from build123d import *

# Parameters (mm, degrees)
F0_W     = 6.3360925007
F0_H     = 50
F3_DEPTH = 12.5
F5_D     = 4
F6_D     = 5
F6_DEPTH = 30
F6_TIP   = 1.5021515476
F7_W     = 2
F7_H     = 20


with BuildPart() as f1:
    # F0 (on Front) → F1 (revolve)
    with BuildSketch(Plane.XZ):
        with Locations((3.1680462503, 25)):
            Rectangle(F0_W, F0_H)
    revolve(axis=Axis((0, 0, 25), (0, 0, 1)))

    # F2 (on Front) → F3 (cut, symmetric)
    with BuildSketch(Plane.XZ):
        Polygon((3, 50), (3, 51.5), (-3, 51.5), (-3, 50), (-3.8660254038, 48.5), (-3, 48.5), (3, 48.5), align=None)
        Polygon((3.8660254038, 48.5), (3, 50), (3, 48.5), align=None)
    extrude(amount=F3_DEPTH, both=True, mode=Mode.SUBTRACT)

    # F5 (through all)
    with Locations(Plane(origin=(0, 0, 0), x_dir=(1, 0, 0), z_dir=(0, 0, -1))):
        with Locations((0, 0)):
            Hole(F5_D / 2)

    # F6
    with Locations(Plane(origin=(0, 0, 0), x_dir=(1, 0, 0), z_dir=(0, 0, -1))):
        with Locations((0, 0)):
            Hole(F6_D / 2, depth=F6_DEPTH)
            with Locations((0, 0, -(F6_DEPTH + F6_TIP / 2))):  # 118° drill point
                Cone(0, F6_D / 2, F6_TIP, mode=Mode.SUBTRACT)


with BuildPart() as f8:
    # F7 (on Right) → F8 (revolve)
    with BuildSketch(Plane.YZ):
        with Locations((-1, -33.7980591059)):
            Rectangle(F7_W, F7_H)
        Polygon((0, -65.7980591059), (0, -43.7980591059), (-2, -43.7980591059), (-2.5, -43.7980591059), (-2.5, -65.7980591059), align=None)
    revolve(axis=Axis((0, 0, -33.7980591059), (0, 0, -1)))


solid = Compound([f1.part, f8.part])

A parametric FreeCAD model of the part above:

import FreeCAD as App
import Part
import Sketcher
from FreeCAD import Vector
Q = App.Units.Quantity

doc = App.newDocument("Part")
body = doc.addObject("PartDesign::Body", "Body")

sketch1 = doc.addObject("Sketcher::SketchObject", "Sketch")
body.addObject(sketch1)
sketch1.AttachmentSupport = (doc.XZ_Plane, [""])
sketch1.MapMode = "FlatFace"
sketch1.addGeometry([
    Part.LineSegment(Vector(0, 50, 0), Vector(0, 0, 0)),
    Part.LineSegment(Vector(0, 0, 0), Vector(6.336093, 0, 0)),
    Part.LineSegment(Vector(6.336093, 0, 0), Vector(6.336093, 50, 0)),
    Part.LineSegment(Vector(6.336093, 50, 0), Vector(0, 50, 0)),
], False)
sketch1.addConstraint([
    Sketcher.Constraint("Coincident", 0, 2, 1, 1),
    Sketcher.Constraint("Coincident", 1, 2, 2, 1),
    Sketcher.Constraint("Coincident", 2, 2, 3, 1),
    Sketcher.Constraint("Coincident", 3, 2, 0, 1),
    Sketcher.Constraint("Vertical", 0),
    Sketcher.Constraint("Horizontal", 1),
    Sketcher.Constraint("Vertical", 2),
    Sketcher.Constraint("Horizontal", 3),
    Sketcher.Constraint("Coincident", 0, 2, -1, 1),
    Sketcher.Constraint("DistanceY", 0, 2, 0, 1, 50.0),
    Sketcher.Constraint("DistanceX", 1, 1, 1, 2, 6.336093),
])
revolution = doc.addObject("PartDesign::Revolution", "Revolution")
body.addObject(revolution)
revolution.Profile = sketch1
revolution.ReferenceAxis = (sketch1, ["V_Axis"])
revolution.Angle = 360

sketch2 = doc.addObject("Sketcher::SketchObject", "Sketch001")
body.addObject(sketch2)
sketch2.AttachmentSupport = (doc.XZ_Plane, [""])
sketch2.MapMode = "FlatFace"
sketch2.addGeometry([
    Part.LineSegment(Vector(3, 51.5, 0), Vector(-3, 51.5, 0)),
    Part.LineSegment(Vector(-3, 51.5, 0), Vector(-3, 50, 0)),
    Part.LineSegment(Vector(-3, 50, 0), Vector(-3.866025, 48.5, 0)),
    Part.LineSegment(Vector(-3.866025, 48.5, 0), Vector(3.866025, 48.5, 0)),
    Part.LineSegment(Vector(3.866025, 48.5, 0), Vector(3, 50, 0)),
    Part.LineSegment(Vector(3, 50, 0), Vector(3, 51.5, 0)),
], False)
sketch2.addConstraint([
    Sketcher.Constraint("Coincident", 0, 2, 1, 1),
    Sketcher.Constraint("Coincident", 1, 2, 2, 1),
    Sketcher.Constraint("Coincident", 2, 2, 3, 1),
    Sketcher.Constraint("Coincident", 3, 2, 4, 1),
    Sketcher.Constraint("Coincident", 4, 2, 5, 1),
    Sketcher.Constraint("Coincident", 5, 2, 0, 1),
    Sketcher.Constraint("Horizontal", 0),
    Sketcher.Constraint("Vertical", 1),
    Sketcher.Constraint("Horizontal", 3),
    Sketcher.Constraint("Vertical", 5),
    Sketcher.Constraint("Symmetric", 1, 2, 4, 2, -2),
    Sketcher.Constraint("Equal", 2, 4),
    Sketcher.Constraint("DistanceX", 0, 2, 0, 1, 6.0),
    Sketcher.Constraint("Angle", 2, Q("-120 deg")),
    Sketcher.Constraint("DistanceY", 1, 2, 1, 1, 1.5),
    Sketcher.Constraint("DistanceY", -1, 1, 1, 2, 50.0),
    Sketcher.Constraint("DistanceY", 2, 2, 0, 2, 3.0),
])
pocket1 = doc.addObject("PartDesign::Pocket", "Pocket")
body.addObject(pocket1)
pocket1.Profile = sketch2
pocket1.Length = 25
pocket1.Midplane = True

sketch3 = doc.addObject("Sketcher::SketchObject", "Sketch002")
body.addObject(sketch3)
sketch3.AttachmentSupport = (doc.XY_Plane, [""])
sketch3.MapMode = "FlatFace"
sketch3.addGeometry(Part.Circle(Vector(0, 0, 0), Vector(0, 0, 1), 2), False)
sketch3.addConstraint([
    Sketcher.Constraint("Coincident", 0, 3, -1, 1),
    Sketcher.Constraint("Diameter", 0, 4.0),
])
doc.recompute()
hole = doc.addObject("PartDesign::Hole", "Hole")
body.addObject(hole)
hole.Profile = sketch3
hole.ThreadType = "None"
hole.Diameter = 4
hole.DepthType = "ThroughAll"
hole.Reversed = True

sketch4 = doc.addObject("Sketcher::SketchObject", "Sketch003")
body.addObject(sketch4)
sketch4.AttachmentSupport = (doc.XY_Plane, [""])
sketch4.MapMode = "FlatFace"
sketch4.addGeometry(Part.Circle(Vector(0, 0, 0), Vector(0, 0, 1), 2.5), False)
sketch4.addConstraint([
    Sketcher.Constraint("Coincident", 0, 3, -1, 1),
    Sketcher.Constraint("Diameter", 0, 5.0),
])
doc.recompute()
hole2 = doc.addObject("PartDesign::Hole", "Hole001")
body.addObject(hole2)
hole2.Profile = sketch4
hole2.ThreadType = "None"
hole2.Diameter = 5
hole2.DepthType = "Dimension"
hole2.Depth = 30
hole2.DrillPoint = "Angled"
hole2.DrillPointAngle = 118
hole2.Reversed = True
body2 = doc.addObject("PartDesign::Body", "Body001")

sketch5 = doc.addObject("Sketcher::SketchObject", "Sketch004")
body2.addObject(sketch5)
sketch5.AttachmentSupport = (doc.getObject("YZ_Plane001"), [""])
sketch5.MapMode = "FlatFace"
sketch5.addGeometry([
    Part.LineSegment(Vector(-2, -23.798059, 0), Vector(-2, -43.798059, 0)),
    Part.LineSegment(Vector(-2, -43.798059, 0), Vector(-2.5, -43.798059, 0)),
    Part.LineSegment(Vector(-2.5, -43.798059, 0), Vector(-2.5, -65.798059, 0)),
    Part.LineSegment(Vector(-2.5, -65.798059, 0), Vector(0, -65.798059, 0)),
    Part.LineSegment(Vector(0, -65.798059, 0), Vector(0, -23.798059, 0)),
    Part.LineSegment(Vector(0, -23.798059, 0), Vector(-2, -23.798059, 0)),
], False)
sketch5.addConstraint([
    Sketcher.Constraint("Coincident", 0, 2, 1, 1),
    Sketcher.Constraint("Coincident", 1, 2, 2, 1),
    Sketcher.Constraint("Coincident", 2, 2, 3, 1),
    Sketcher.Constraint("Coincident", 3, 2, 4, 1),
    Sketcher.Constraint("Coincident", 4, 2, 5, 1),
    Sketcher.Constraint("Coincident", 5, 2, 0, 1),
    Sketcher.Constraint("Vertical", 0),
    Sketcher.Constraint("Horizontal", 1),
    Sketcher.Constraint("Vertical", 2),
    Sketcher.Constraint("Horizontal", 3),
    Sketcher.Constraint("Vertical", 4),
    Sketcher.Constraint("Horizontal", 5),
    Sketcher.Constraint("PointOnObject", 3, 2, -2),
    Sketcher.Constraint("DistanceX", 5, 2, 5, 1, 2.0),
    Sketcher.Constraint("DistanceY", 0, 2, 0, 1, 20.0),
    Sketcher.Constraint("DistanceY", 2, 2, 2, 1, 22.0),
    Sketcher.Constraint("DistanceX", 1, 2, 1, 1, 0.5),
    Sketcher.Constraint("DistanceY", 0, 2, -1, 1, 43.798059),
])
revolution2 = doc.addObject("PartDesign::Revolution", "Revolution001")
body2.addObject(revolution2)
revolution2.Profile = sketch5
revolution2.ReferenceAxis = (sketch5, ["V_Axis"])
revolution2.Angle = 360

doc.recompute()
